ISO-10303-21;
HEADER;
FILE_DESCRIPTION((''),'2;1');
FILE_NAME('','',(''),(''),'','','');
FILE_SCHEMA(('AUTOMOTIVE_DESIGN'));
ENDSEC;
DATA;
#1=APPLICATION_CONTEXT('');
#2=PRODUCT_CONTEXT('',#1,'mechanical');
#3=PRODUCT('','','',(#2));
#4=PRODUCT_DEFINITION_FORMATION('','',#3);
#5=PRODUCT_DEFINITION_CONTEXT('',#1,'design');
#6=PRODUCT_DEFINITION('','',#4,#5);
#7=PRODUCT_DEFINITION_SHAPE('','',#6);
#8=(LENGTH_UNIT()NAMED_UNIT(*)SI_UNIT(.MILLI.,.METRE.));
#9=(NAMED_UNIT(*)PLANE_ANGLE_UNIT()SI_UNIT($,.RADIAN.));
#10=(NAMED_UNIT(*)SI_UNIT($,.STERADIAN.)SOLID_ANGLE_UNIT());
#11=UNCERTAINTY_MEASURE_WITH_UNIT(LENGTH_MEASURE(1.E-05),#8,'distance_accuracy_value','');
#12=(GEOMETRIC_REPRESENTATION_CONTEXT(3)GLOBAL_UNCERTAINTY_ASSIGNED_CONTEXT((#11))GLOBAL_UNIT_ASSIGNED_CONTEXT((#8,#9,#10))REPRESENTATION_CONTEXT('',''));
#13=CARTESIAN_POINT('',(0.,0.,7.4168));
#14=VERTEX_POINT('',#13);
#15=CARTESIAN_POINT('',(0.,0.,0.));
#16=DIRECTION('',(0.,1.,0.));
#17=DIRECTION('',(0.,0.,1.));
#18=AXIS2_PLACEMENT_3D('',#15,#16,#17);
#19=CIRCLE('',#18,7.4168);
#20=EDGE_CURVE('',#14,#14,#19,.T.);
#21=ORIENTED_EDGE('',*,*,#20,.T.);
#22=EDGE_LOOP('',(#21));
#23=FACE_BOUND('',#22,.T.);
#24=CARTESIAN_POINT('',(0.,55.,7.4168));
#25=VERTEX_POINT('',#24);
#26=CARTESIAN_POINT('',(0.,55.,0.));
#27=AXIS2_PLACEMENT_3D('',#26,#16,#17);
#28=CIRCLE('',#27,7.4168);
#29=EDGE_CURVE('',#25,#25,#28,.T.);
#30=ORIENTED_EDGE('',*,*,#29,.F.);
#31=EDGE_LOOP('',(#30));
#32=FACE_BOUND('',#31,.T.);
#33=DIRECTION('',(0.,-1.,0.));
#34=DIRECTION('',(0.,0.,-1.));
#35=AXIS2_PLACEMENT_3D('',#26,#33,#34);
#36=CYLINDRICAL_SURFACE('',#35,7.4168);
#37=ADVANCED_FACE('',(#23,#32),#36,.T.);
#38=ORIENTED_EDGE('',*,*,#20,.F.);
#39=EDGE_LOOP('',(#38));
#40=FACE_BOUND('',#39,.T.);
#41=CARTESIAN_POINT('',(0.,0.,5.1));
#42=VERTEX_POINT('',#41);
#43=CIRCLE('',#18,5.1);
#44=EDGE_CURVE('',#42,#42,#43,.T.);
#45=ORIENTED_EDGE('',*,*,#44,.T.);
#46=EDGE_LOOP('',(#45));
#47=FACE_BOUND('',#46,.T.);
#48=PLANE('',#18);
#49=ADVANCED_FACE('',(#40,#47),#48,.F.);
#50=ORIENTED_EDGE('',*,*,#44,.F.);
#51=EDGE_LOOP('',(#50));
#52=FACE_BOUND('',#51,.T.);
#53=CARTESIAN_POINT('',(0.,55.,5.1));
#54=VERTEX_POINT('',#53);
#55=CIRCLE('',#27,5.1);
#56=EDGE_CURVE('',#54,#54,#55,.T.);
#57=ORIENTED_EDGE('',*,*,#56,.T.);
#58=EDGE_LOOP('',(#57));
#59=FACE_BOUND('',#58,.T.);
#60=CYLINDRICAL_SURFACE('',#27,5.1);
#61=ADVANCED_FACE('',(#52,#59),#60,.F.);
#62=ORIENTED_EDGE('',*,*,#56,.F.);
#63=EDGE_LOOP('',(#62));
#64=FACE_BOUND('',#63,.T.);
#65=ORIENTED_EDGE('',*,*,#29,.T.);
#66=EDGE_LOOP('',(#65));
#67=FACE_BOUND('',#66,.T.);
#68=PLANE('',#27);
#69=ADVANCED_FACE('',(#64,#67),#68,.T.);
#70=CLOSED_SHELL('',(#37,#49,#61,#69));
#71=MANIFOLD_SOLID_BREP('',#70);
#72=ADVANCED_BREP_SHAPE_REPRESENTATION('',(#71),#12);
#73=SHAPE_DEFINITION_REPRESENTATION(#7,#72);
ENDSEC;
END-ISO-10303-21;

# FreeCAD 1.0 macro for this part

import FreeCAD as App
import Part
import Sketcher

V = App.Vector

doc = App.newDocument("Part")
params = doc.addObject("Spreadsheet::Sheet", "Params")
for row, (alias, value) in enumerate([
    ("pad1_length", "55 mm"),
    ("sketch2_diameter", "10.2 mm"),
    ("hole_diameter", "10.2 mm"),
], start=1):
    params.set(f"A{row}", alias)
    params.set(f"B{row}", "=" + value)
    params.setAlias(f"B{row}", alias)

body = doc.addObject("PartDesign::Body", "Body")

sketch1 = body.newObject("Sketcher::SketchObject", "Sketch")
sketch1.AttachmentSupport = (doc.getObject("XZ_Plane"), [""])
sketch1.MapMode = "FlatFace"
sketch1.addGeometry(Part.Circle(V(0, 0, 0), V(0, 0, 1), 7), False)
sketch1.addConstraint([
    Sketcher.Constraint("Coincident", 0, 3, -1, 1),
    Sketcher.Constraint("Diameter", 0, 14.8336),
])
pad1 = body.newObject("PartDesign::Pad", "Pad")
pad1.Profile = sketch1
pad1.setExpression("Length", "Params.pad1_length")
pad1.Reversed = True

sketch2 = body.newObject("Sketcher::SketchObject", "Sketch001")
sketch2.AttachmentSupport = (doc.getObject("XZ_Plane"), [""])
sketch2.MapMode = "FlatFace"
sketch2.AttachmentOffset = App.Placement(V(0, 0, -55), App.Rotation())
sketch2.addGeometry(Part.Circle(V(0, 0, 0), V(0, 0, 1), 5), False)
sketch2.addConstraint([
    Sketcher.Constraint("Coincident", 0, 3, -1, 1),
    Sketcher.Constraint("Diameter", 0, 10.2),
])
sketch2.setExpression("Constraints[1]", "Params.sketch2_diameter")
doc.recompute()
hole = body.newObject("PartDesign::Hole", "Hole")
hole.Profile = sketch2
hole.ThreadType = "None"
hole.setExpression("Diameter", "Params.hole_diameter")
hole.DepthType = "ThroughAll"
hole.Reversed = True

doc.recompute()
